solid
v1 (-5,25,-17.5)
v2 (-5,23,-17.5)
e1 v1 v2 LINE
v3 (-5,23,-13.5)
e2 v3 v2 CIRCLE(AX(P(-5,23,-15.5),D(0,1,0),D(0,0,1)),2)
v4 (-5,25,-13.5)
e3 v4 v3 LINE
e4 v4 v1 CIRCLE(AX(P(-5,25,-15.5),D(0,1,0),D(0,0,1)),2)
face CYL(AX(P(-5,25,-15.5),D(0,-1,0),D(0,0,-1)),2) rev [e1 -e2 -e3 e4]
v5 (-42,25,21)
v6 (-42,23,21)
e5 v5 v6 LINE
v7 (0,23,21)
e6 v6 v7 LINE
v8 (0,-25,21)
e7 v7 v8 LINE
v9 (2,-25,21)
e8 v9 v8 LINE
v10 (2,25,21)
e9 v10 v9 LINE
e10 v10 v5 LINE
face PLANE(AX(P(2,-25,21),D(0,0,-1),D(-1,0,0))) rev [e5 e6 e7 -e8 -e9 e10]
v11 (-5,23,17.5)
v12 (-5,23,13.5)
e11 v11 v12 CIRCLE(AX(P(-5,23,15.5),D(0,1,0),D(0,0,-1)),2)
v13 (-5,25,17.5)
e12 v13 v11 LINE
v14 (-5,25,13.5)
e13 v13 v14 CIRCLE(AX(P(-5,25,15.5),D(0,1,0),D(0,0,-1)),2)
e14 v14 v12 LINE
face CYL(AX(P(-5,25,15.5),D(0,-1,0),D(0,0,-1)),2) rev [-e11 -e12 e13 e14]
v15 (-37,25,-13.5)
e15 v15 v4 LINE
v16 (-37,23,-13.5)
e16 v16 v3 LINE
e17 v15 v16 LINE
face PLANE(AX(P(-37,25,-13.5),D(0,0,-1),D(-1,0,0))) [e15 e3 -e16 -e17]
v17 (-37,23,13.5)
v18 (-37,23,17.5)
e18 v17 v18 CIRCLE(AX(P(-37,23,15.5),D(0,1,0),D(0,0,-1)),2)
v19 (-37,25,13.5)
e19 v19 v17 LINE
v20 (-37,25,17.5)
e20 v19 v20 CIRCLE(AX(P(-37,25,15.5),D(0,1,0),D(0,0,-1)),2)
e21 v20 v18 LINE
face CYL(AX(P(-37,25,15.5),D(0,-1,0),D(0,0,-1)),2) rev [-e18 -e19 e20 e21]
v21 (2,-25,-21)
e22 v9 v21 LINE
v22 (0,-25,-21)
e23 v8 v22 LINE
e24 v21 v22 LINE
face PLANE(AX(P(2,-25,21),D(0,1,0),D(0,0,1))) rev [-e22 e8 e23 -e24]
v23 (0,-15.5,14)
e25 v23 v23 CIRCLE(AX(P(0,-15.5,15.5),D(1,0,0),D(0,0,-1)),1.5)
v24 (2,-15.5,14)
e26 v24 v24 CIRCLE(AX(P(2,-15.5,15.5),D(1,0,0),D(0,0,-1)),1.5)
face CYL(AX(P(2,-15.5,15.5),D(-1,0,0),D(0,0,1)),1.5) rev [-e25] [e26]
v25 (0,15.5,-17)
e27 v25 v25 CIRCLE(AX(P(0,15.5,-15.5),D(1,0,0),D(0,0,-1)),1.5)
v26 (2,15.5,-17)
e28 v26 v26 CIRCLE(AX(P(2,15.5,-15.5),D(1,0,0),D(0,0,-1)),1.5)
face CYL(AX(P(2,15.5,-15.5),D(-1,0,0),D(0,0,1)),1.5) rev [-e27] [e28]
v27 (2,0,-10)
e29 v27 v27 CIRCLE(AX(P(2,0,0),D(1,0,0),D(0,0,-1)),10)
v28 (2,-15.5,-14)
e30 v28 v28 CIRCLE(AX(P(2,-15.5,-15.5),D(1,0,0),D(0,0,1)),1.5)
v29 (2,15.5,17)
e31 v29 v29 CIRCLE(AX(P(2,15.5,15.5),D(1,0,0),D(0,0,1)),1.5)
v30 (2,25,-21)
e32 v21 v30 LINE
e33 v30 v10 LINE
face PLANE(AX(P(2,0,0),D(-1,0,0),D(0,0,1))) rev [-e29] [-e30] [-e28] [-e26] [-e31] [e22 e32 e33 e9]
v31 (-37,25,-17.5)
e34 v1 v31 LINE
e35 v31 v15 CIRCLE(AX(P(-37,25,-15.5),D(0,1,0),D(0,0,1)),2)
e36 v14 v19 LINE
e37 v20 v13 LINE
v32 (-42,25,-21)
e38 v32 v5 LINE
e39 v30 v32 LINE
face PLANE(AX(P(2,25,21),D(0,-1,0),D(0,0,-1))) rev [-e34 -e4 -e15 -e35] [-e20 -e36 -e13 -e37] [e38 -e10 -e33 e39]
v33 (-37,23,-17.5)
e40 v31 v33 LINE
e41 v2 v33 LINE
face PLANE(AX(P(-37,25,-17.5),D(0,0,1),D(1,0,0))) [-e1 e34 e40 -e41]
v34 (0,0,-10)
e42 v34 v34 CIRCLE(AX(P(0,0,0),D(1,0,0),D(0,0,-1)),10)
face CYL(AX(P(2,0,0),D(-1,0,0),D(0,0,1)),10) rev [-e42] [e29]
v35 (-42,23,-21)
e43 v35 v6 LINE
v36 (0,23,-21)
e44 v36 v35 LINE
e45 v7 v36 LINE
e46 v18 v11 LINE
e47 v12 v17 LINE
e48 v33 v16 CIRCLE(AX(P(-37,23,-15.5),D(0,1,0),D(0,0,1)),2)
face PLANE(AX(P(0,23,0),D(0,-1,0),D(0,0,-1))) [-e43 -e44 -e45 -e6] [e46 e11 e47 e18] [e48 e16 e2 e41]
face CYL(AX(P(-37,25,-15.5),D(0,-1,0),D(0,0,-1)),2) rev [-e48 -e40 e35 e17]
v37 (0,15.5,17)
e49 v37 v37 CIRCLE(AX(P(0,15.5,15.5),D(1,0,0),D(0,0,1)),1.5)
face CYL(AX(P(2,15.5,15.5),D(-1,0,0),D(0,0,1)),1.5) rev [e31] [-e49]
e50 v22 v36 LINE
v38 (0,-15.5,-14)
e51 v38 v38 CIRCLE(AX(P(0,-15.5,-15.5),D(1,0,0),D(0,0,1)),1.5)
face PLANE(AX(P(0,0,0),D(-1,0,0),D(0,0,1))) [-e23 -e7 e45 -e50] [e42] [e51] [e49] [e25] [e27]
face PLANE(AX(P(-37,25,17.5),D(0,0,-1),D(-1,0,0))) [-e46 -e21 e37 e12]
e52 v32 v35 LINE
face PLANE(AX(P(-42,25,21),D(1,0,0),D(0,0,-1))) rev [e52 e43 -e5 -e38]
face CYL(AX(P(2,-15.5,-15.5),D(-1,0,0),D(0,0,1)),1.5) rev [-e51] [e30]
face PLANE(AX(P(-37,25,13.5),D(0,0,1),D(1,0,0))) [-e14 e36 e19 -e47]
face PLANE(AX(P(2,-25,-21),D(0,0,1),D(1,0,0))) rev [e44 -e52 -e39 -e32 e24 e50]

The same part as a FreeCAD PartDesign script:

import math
import FreeCAD as App
import Part
import Sketcher

V = App.Vector


def add_polygon(sketch, points):
    """Adds a closed chain of lines whose ends are joined by coincident constraints."""
    first, n = sketch.GeometryCount, len(points)
    for a, b in zip(points, points[1:] + points[:1]):
        sketch.addGeometry(Part.LineSegment(App.Vector(*a, 0), App.Vector(*b, 0)), False)
    for i in range(n):
        sketch.addConstraint(Sketcher.Constraint("Coincident", first + i, 2, first + (i + 1) % n, 1))

doc = App.newDocument("Part")
body = doc.addObject("PartDesign::Body", "Body")

# Sketch on YZ plane
sketch1 = body.newObject("Sketcher::SketchObject", "Sketch")
sketch1.AttachmentSupport = (doc.getObject("YZ_Plane"), [""])
sketch1.MapMode = "FlatFace"
add_polygon(sketch1, [(25, 21), (-25, 21), (-25, -21), (25, -21)])  # lines 0-3
sketch1.addGeometry(Part.Circle(V(-15.5, 15.5, 0), V(0, 0, 1), 1.5), False)  # 4
sketch1.addGeometry(Part.Circle(V(-15.5, -15.5, 0), V(0, 0, 1), 1.5), False)  # 5
sketch1.addGeometry(Part.Circle(V(15.5, 15.5, 0), V(0, 0, 1), 1.5), False)  # 6
sketch1.addGeometry(Part.Circle(V(0, 0, 0), V(0, 0, 1), 10), False)  # 7
sketch1.addGeometry(Part.Circle(V(15.5, -15.5, 0), V(0, 0, 1), 1.5), False)  # 8
sketch1.addConstraint([
    Sketcher.Constraint("Horizontal", 0),
    Sketcher.Constraint("Vertical", 1),
    Sketcher.Constraint("Horizontal", 2),
    Sketcher.Constraint("Vertical", 3),
    Sketcher.Constraint("Coincident", 7, 3, -1, 1),
    Sketcher.Constraint("Equal", 4, 5),
    Sketcher.Constraint("Equal", 5, 6),
    Sketcher.Constraint("Equal", 6, 8),
    Sketcher.Constraint("Symmetric", 5, 3, 6, 3, -1, 1),
    Sketcher.Constraint("Symmetric", 4, 3, 8, 3, -1, 1),
    Sketcher.Constraint("Symmetric", 0, 2, 2, 2, -1, 1),
    Sketcher.Constraint("Symmetric", 4, 3, 6, 3, -2),
    Sketcher.Constraint("Diameter", 4, 3.0),
    Sketcher.Constraint("Diameter", 7, 20.0),
    Sketcher.Constraint("DistanceX", 0, 2, 0, 1, 50.0),
    Sketcher.Constraint("DistanceY", 1, 2, 1, 1, 42.0),
    Sketcher.Constraint("DistanceY", 5, 3, 4, 3, 31.0),
    Sketcher.Constraint("DistanceX", 4, 3, 6, 3, 31.0),
])
pad1 = body.newObject("PartDesign::Pad", "Pad")
pad1.Profile = sketch1
pad1.Length = 2

# Sketch on XZ plane
sketch2 = body.newObject("Sketcher::SketchObject", "Sketch001")
sketch2.AttachmentSupport = (doc.getObject("XZ_Plane"), [""])
sketch2.MapMode = "FlatFace"
add_polygon(sketch2, [(-42, -21), (-42, 21), (0, 21), (0, -21)])  # lines 0-3
sketch2.addGeometry(Part.LineSegment(V(-5, 17.5, 0), V(-37, 17.5, 0)), False)  # 4
sketch2.addGeometry(Part.ArcOfCircle(Part.Circle(V(-37, 15.5, 0), V(0, 0, 1), 2), math.radians(90), math.radians(270)), False)  # 5
sketch2.addGeometry(Part.LineSegment(V(-37, 13.5, 0), V(-5, 13.5, 0)), False)  # 6
sketch2.addGeometry(Part.ArcOfCircle(Part.Circle(V(-5, 15.5, 0), V(0, 0, 1), 2), math.radians(-90), math.radians(90)), False)  # 7
sketch2.addGeometry(Part.ArcOfCircle(Part.Circle(V(-37, -15.5, 0), V(0, 0, 1), 2), math.radians(90), math.radians(270)), False)  # 8
sketch2.addGeometry(Part.LineSegment(V(-37, -17.5, 0), V(-5, -17.5, 0)), False)  # 9
sketch2.addGeometry(Part.ArcOfCircle(Part.Circle(V(-5, -15.5, 0), V(0, 0, 1), 2), math.radians(-90), math.radians(90)), False)  # 10
sketch2.addGeometry(Part.LineSegment(V(-5, -13.5, 0), V(-37, -13.5, 0)), False)  # 11
sketch2.addConstraint([
    Sketcher.Constraint("Tangent", 4, 2, 5, 1),
    Sketcher.Constraint("Tangent", 5, 2, 6, 1),
    Sketcher.Constraint("Tangent", 6, 2, 7, 1),
    Sketcher.Constraint("Tangent", 7, 2, 4, 1),
    Sketcher.Constraint("Tangent", 8, 2, 9, 1),
    Sketcher.Constraint("Tangent", 9, 2, 10, 1),
    Sketcher.Constraint("Tangent", 10, 2, 11, 1),
    Sketcher.Constraint("Tangent", 11, 2, 8, 1),
    Sketcher.Constraint("Vertical", 0),
    Sketcher.Constraint("Horizontal", 1),
    Sketcher.Constraint("Vertical", 2),
    Sketcher.Constraint("Horizontal", 3),
    Sketcher.Constraint("Horizontal", 4),
    Sketcher.Constraint("Horizontal", 6),
    Sketcher.Constraint("Horizontal", 9),
    Sketcher.Constraint("Horizontal", 11),
    Sketcher.Constraint("Equal", 7, 8),
    Sketcher.Constraint("Symmetric", 1, 2, 2, 2, -1, 1),
    Sketcher.Constraint("Symmetric", 5, 3, 8, 3, -1),
    Sketcher.Constraint("Vertical", 7, 3, 10, 3),
    Sketcher.Constraint("Equal", 3, 0),
    Sketcher.Constraint("Radius", 5, 2.0),
    Sketcher.Constraint("DistanceX", 1, 1, 1, 2, 42.0),
    Sketcher.Constraint("DistanceX", 4, 2, 4, 1, 32.0),
    Sketcher.Constraint("DistanceX", 5, 3, -1, 1, 37.0),
    Sketcher.Constraint("DistanceY", 8, 3, 5, 3, 31.0),
])
pad2 = body.newObject("PartDesign::Pad", "Pad001")
pad2.Profile = sketch2
pad2.Length = 25
pad2.Reversed = True

# Sketch on XZ plane
sketch3 = body.newObject("Sketcher::SketchObject", "Sketch002")
sketch3.AttachmentSupport = (doc.getObject("XZ_Plane"), [""])
sketch3.MapMode = "FlatFace"
add_polygon(sketch3, [(-42, -21), (-42, 21), (0, 21), (0, -21)])  # lines 0-3
sketch3.addGeometry(Part.LineSegment(V(-5, 17.5, 0), V(-37, 17.5, 0)), False)  # 4
sketch3.addGeometry(Part.ArcOfCircle(Part.Circle(V(-37, 15.5, 0), V(0, 0, 1), 2), math.radians(90), math.radians(270)), False)  # 5
sketch3.addGeometry(Part.LineSegment(V(-37, 13.5, 0), V(-5, 13.5, 0)), False)  # 6
sketch3.addGeometry(Part.ArcOfCircle(Part.Circle(V(-5, 15.5, 0), V(0, 0, 1), 2), math.radians(-90), math.radians(90)), False)  # 7
sketch3.addGeometry(Part.ArcOfCircle(Part.Circle(V(-37, -15.5, 0), V(0, 0, 1), 2), math.radians(90), math.radians(270)), False)  # 8
sketch3.addGeometry(Part.LineSegment(V(-37, -17.5, 0), V(-5, -17.5, 0)), False)  # 9
sketch3.addGeometry(Part.ArcOfCircle(Part.Circle(V(-5, -15.5, 0), V(0, 0, 1), 2), math.radians(-90), math.radians(90)), False)  # 10
sketch3.addGeometry(Part.LineSegment(V(-5, -13.5, 0), V(-37, -13.5, 0)), False)  # 11
sketch3.addConstraint([
    Sketcher.Constraint("Tangent", 4, 2, 5, 1),
    Sketcher.Constraint("Tangent", 5, 2, 6, 1),
    Sketcher.Constraint("Tangent", 6, 2, 7, 1),
    Sketcher.Constraint("Tangent", 7, 2, 4, 1),
    Sketcher.Constraint("Tangent", 8, 2, 9, 1),
    Sketcher.Constraint("Tangent", 9, 2, 10, 1),
    Sketcher.Constraint("Tangent", 10, 2, 11, 1),
    Sketcher.Constraint("Tangent", 11, 2, 8, 1),
    Sketcher.Constraint("Vertical", 0),
    Sketcher.Constraint("Horizontal", 1),
    Sketcher.Constraint("Vertical", 2),
    Sketcher.Constraint("Horizontal", 3),
    Sketcher.Constraint("Horizontal", 4),
    Sketcher.Constraint("Horizontal", 6),
    Sketcher.Constraint("Horizontal", 9),
    Sketcher.Constraint("Horizontal", 11),
    Sketcher.Constraint("Equal", 7, 8),
    Sketcher.Constraint("Symmetric", 1, 2, 2, 2, -1, 1),
    Sketcher.Constraint("Symmetric", 5, 3, 8, 3, -1),
    Sketcher.Constraint("Vertical", 7, 3, 10, 3),
    Sketcher.Constraint("Equal", 3, 0),
    Sketcher.Constraint("Radius", 5, 2.0),
    Sketcher.Constraint("DistanceX", 1, 1, 1, 2, 42.0),
    Sketcher.Constraint("DistanceX", 4, 2, 4, 1, 32.0),
    Sketcher.Constraint("DistanceX", 5, 3, -1, 1, 37.0),
    Sketcher.Constraint("DistanceY", 8, 3, 5, 3, 31.0),
])
pocket1 = body.newObject("PartDesign::Pocket", "Pocket")
pocket1.Profile = sketch3
pocket1.Length = 23

doc.recompute()
